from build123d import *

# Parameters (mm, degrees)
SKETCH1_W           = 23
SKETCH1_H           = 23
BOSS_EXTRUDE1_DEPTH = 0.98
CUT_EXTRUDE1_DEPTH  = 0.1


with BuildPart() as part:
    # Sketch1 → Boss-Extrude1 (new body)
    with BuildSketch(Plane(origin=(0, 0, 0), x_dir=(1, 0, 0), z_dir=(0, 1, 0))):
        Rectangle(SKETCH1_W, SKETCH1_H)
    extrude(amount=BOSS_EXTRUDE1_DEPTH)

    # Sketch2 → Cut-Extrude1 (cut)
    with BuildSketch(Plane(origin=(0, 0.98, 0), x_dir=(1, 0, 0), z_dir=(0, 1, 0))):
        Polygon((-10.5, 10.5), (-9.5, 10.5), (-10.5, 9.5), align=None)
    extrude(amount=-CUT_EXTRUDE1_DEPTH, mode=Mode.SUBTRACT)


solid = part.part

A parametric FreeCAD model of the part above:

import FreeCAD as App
import Part
import Sketcher

V = App.Vector

doc = App.newDocument("Part")
body = doc.addObject("PartDesign::Body", "Body")

# Sketch on XZ plane
sketch1 = body.newObject("Sketcher::SketchObject", "Sketch")
sketch1.AttachmentSupport = (doc.getObject("XZ_Plane"), [""])
sketch1.MapMode = "FlatFace"
sketch1.addGeometry(Part.LineSegment(V(-12, -12, 0), V(-12, 12, 0)), False)
sketch1.addGeometry(Part.LineSegment(V(-12, 12, 0), V(12, 12, 0)), False)
sketch1.addGeometry(Part.LineSegment(V(12, 12, 0), V(12, -12, 0)), False)
sketch1.addGeometry(Part.LineSegment(V(12, -12, 0), V(-12, -12, 0)), False)
sketch1.addConstraint(Sketcher.Constraint("Coincident", 0, 2, 1, 1))
sketch1.addConstraint(Sketcher.Constraint("Coincident", 1, 2, 2, 1))
sketch1.addConstraint(Sketcher.Constraint("Coincident", 2, 2, 3, 1))
sketch1.addConstraint(Sketcher.Constraint("Coincident", 3, 2, 0, 1))
sketch1.addConstraint(Sketcher.Constraint("Vertical", 0))
sketch1.addConstraint(Sketcher.Constraint("Horizontal", 1))
sketch1.addConstraint(Sketcher.Constraint("Vertical", 2))
sketch1.addConstraint(Sketcher.Constraint("Horizontal", 3))
sketch1.addConstraint(Sketcher.Constraint("Symmetric", 0, 2, 2, 2, -1, 1))
sketch1.addConstraint(Sketcher.Constraint("Equal", 3, 0))
sketch1.addConstraint(Sketcher.Constraint("DistanceX", 1, 1, 1, 2, 23.0))
pad1 = body.newObject("PartDesign::Pad", "Pad")
pad1.Profile = sketch1
pad1.Length = 0.98
pad1.Reversed = True

# Sketch on XZ plane
sketch2 = body.newObject("Sketcher::SketchObject", "Sketch001")
sketch2.AttachmentSupport = (doc.getObject("XZ_Plane"), [""])
sketch2.MapMode = "FlatFace"
sketch2.AttachmentOffset = App.Placement(V(0, 0, -0.98), App.Rotation())
sketch2.addGeometry(Part.LineSegment(V(-9.5, -10.5, 0), V(-10.5, -10.5, 0)), False)
sketch2.addGeometry(Part.LineSegment(V(-10.5, -10.5, 0), V(-10.5, -9.5, 0)), False)
sketch2.addGeometry(Part.LineSegment(V(-10.5, -9.5, 0), V(-9.5, -10.5, 0)), False)
sketch2.addConstraint(Sketcher.Constraint("Coincident", 0, 2, 1, 1))
sketch2.addConstraint(Sketcher.Constraint("Coincident", 1, 2, 2, 1))
sketch2.addConstraint(Sketcher.Constraint("Coincident", 2, 2, 0, 1))
sketch2.addConstraint(Sketcher.Constraint("Horizontal", 0))
sketch2.addConstraint(Sketcher.Constraint("Vertical", 1))
sketch2.addConstraint(Sketcher.Constraint("Equal", 0, 1))
sketch2.addConstraint(Sketcher.Constraint("DistanceX", 0, 2, 0, 1, 1.0))
sketch2.addConstraint(Sketcher.Constraint("DistanceX", 0, 2, -1, 1, 10.5))
sketch2.addConstraint(Sketcher.Constraint("DistanceY", 0, 2, -1, 1, 10.5))
pocket1 = body.newObject("PartDesign::Pocket", "Pocket")
pocket1.Profile = sketch2
pocket1.Length = 0.1
pocket1.Reversed = True

doc.recompute()
